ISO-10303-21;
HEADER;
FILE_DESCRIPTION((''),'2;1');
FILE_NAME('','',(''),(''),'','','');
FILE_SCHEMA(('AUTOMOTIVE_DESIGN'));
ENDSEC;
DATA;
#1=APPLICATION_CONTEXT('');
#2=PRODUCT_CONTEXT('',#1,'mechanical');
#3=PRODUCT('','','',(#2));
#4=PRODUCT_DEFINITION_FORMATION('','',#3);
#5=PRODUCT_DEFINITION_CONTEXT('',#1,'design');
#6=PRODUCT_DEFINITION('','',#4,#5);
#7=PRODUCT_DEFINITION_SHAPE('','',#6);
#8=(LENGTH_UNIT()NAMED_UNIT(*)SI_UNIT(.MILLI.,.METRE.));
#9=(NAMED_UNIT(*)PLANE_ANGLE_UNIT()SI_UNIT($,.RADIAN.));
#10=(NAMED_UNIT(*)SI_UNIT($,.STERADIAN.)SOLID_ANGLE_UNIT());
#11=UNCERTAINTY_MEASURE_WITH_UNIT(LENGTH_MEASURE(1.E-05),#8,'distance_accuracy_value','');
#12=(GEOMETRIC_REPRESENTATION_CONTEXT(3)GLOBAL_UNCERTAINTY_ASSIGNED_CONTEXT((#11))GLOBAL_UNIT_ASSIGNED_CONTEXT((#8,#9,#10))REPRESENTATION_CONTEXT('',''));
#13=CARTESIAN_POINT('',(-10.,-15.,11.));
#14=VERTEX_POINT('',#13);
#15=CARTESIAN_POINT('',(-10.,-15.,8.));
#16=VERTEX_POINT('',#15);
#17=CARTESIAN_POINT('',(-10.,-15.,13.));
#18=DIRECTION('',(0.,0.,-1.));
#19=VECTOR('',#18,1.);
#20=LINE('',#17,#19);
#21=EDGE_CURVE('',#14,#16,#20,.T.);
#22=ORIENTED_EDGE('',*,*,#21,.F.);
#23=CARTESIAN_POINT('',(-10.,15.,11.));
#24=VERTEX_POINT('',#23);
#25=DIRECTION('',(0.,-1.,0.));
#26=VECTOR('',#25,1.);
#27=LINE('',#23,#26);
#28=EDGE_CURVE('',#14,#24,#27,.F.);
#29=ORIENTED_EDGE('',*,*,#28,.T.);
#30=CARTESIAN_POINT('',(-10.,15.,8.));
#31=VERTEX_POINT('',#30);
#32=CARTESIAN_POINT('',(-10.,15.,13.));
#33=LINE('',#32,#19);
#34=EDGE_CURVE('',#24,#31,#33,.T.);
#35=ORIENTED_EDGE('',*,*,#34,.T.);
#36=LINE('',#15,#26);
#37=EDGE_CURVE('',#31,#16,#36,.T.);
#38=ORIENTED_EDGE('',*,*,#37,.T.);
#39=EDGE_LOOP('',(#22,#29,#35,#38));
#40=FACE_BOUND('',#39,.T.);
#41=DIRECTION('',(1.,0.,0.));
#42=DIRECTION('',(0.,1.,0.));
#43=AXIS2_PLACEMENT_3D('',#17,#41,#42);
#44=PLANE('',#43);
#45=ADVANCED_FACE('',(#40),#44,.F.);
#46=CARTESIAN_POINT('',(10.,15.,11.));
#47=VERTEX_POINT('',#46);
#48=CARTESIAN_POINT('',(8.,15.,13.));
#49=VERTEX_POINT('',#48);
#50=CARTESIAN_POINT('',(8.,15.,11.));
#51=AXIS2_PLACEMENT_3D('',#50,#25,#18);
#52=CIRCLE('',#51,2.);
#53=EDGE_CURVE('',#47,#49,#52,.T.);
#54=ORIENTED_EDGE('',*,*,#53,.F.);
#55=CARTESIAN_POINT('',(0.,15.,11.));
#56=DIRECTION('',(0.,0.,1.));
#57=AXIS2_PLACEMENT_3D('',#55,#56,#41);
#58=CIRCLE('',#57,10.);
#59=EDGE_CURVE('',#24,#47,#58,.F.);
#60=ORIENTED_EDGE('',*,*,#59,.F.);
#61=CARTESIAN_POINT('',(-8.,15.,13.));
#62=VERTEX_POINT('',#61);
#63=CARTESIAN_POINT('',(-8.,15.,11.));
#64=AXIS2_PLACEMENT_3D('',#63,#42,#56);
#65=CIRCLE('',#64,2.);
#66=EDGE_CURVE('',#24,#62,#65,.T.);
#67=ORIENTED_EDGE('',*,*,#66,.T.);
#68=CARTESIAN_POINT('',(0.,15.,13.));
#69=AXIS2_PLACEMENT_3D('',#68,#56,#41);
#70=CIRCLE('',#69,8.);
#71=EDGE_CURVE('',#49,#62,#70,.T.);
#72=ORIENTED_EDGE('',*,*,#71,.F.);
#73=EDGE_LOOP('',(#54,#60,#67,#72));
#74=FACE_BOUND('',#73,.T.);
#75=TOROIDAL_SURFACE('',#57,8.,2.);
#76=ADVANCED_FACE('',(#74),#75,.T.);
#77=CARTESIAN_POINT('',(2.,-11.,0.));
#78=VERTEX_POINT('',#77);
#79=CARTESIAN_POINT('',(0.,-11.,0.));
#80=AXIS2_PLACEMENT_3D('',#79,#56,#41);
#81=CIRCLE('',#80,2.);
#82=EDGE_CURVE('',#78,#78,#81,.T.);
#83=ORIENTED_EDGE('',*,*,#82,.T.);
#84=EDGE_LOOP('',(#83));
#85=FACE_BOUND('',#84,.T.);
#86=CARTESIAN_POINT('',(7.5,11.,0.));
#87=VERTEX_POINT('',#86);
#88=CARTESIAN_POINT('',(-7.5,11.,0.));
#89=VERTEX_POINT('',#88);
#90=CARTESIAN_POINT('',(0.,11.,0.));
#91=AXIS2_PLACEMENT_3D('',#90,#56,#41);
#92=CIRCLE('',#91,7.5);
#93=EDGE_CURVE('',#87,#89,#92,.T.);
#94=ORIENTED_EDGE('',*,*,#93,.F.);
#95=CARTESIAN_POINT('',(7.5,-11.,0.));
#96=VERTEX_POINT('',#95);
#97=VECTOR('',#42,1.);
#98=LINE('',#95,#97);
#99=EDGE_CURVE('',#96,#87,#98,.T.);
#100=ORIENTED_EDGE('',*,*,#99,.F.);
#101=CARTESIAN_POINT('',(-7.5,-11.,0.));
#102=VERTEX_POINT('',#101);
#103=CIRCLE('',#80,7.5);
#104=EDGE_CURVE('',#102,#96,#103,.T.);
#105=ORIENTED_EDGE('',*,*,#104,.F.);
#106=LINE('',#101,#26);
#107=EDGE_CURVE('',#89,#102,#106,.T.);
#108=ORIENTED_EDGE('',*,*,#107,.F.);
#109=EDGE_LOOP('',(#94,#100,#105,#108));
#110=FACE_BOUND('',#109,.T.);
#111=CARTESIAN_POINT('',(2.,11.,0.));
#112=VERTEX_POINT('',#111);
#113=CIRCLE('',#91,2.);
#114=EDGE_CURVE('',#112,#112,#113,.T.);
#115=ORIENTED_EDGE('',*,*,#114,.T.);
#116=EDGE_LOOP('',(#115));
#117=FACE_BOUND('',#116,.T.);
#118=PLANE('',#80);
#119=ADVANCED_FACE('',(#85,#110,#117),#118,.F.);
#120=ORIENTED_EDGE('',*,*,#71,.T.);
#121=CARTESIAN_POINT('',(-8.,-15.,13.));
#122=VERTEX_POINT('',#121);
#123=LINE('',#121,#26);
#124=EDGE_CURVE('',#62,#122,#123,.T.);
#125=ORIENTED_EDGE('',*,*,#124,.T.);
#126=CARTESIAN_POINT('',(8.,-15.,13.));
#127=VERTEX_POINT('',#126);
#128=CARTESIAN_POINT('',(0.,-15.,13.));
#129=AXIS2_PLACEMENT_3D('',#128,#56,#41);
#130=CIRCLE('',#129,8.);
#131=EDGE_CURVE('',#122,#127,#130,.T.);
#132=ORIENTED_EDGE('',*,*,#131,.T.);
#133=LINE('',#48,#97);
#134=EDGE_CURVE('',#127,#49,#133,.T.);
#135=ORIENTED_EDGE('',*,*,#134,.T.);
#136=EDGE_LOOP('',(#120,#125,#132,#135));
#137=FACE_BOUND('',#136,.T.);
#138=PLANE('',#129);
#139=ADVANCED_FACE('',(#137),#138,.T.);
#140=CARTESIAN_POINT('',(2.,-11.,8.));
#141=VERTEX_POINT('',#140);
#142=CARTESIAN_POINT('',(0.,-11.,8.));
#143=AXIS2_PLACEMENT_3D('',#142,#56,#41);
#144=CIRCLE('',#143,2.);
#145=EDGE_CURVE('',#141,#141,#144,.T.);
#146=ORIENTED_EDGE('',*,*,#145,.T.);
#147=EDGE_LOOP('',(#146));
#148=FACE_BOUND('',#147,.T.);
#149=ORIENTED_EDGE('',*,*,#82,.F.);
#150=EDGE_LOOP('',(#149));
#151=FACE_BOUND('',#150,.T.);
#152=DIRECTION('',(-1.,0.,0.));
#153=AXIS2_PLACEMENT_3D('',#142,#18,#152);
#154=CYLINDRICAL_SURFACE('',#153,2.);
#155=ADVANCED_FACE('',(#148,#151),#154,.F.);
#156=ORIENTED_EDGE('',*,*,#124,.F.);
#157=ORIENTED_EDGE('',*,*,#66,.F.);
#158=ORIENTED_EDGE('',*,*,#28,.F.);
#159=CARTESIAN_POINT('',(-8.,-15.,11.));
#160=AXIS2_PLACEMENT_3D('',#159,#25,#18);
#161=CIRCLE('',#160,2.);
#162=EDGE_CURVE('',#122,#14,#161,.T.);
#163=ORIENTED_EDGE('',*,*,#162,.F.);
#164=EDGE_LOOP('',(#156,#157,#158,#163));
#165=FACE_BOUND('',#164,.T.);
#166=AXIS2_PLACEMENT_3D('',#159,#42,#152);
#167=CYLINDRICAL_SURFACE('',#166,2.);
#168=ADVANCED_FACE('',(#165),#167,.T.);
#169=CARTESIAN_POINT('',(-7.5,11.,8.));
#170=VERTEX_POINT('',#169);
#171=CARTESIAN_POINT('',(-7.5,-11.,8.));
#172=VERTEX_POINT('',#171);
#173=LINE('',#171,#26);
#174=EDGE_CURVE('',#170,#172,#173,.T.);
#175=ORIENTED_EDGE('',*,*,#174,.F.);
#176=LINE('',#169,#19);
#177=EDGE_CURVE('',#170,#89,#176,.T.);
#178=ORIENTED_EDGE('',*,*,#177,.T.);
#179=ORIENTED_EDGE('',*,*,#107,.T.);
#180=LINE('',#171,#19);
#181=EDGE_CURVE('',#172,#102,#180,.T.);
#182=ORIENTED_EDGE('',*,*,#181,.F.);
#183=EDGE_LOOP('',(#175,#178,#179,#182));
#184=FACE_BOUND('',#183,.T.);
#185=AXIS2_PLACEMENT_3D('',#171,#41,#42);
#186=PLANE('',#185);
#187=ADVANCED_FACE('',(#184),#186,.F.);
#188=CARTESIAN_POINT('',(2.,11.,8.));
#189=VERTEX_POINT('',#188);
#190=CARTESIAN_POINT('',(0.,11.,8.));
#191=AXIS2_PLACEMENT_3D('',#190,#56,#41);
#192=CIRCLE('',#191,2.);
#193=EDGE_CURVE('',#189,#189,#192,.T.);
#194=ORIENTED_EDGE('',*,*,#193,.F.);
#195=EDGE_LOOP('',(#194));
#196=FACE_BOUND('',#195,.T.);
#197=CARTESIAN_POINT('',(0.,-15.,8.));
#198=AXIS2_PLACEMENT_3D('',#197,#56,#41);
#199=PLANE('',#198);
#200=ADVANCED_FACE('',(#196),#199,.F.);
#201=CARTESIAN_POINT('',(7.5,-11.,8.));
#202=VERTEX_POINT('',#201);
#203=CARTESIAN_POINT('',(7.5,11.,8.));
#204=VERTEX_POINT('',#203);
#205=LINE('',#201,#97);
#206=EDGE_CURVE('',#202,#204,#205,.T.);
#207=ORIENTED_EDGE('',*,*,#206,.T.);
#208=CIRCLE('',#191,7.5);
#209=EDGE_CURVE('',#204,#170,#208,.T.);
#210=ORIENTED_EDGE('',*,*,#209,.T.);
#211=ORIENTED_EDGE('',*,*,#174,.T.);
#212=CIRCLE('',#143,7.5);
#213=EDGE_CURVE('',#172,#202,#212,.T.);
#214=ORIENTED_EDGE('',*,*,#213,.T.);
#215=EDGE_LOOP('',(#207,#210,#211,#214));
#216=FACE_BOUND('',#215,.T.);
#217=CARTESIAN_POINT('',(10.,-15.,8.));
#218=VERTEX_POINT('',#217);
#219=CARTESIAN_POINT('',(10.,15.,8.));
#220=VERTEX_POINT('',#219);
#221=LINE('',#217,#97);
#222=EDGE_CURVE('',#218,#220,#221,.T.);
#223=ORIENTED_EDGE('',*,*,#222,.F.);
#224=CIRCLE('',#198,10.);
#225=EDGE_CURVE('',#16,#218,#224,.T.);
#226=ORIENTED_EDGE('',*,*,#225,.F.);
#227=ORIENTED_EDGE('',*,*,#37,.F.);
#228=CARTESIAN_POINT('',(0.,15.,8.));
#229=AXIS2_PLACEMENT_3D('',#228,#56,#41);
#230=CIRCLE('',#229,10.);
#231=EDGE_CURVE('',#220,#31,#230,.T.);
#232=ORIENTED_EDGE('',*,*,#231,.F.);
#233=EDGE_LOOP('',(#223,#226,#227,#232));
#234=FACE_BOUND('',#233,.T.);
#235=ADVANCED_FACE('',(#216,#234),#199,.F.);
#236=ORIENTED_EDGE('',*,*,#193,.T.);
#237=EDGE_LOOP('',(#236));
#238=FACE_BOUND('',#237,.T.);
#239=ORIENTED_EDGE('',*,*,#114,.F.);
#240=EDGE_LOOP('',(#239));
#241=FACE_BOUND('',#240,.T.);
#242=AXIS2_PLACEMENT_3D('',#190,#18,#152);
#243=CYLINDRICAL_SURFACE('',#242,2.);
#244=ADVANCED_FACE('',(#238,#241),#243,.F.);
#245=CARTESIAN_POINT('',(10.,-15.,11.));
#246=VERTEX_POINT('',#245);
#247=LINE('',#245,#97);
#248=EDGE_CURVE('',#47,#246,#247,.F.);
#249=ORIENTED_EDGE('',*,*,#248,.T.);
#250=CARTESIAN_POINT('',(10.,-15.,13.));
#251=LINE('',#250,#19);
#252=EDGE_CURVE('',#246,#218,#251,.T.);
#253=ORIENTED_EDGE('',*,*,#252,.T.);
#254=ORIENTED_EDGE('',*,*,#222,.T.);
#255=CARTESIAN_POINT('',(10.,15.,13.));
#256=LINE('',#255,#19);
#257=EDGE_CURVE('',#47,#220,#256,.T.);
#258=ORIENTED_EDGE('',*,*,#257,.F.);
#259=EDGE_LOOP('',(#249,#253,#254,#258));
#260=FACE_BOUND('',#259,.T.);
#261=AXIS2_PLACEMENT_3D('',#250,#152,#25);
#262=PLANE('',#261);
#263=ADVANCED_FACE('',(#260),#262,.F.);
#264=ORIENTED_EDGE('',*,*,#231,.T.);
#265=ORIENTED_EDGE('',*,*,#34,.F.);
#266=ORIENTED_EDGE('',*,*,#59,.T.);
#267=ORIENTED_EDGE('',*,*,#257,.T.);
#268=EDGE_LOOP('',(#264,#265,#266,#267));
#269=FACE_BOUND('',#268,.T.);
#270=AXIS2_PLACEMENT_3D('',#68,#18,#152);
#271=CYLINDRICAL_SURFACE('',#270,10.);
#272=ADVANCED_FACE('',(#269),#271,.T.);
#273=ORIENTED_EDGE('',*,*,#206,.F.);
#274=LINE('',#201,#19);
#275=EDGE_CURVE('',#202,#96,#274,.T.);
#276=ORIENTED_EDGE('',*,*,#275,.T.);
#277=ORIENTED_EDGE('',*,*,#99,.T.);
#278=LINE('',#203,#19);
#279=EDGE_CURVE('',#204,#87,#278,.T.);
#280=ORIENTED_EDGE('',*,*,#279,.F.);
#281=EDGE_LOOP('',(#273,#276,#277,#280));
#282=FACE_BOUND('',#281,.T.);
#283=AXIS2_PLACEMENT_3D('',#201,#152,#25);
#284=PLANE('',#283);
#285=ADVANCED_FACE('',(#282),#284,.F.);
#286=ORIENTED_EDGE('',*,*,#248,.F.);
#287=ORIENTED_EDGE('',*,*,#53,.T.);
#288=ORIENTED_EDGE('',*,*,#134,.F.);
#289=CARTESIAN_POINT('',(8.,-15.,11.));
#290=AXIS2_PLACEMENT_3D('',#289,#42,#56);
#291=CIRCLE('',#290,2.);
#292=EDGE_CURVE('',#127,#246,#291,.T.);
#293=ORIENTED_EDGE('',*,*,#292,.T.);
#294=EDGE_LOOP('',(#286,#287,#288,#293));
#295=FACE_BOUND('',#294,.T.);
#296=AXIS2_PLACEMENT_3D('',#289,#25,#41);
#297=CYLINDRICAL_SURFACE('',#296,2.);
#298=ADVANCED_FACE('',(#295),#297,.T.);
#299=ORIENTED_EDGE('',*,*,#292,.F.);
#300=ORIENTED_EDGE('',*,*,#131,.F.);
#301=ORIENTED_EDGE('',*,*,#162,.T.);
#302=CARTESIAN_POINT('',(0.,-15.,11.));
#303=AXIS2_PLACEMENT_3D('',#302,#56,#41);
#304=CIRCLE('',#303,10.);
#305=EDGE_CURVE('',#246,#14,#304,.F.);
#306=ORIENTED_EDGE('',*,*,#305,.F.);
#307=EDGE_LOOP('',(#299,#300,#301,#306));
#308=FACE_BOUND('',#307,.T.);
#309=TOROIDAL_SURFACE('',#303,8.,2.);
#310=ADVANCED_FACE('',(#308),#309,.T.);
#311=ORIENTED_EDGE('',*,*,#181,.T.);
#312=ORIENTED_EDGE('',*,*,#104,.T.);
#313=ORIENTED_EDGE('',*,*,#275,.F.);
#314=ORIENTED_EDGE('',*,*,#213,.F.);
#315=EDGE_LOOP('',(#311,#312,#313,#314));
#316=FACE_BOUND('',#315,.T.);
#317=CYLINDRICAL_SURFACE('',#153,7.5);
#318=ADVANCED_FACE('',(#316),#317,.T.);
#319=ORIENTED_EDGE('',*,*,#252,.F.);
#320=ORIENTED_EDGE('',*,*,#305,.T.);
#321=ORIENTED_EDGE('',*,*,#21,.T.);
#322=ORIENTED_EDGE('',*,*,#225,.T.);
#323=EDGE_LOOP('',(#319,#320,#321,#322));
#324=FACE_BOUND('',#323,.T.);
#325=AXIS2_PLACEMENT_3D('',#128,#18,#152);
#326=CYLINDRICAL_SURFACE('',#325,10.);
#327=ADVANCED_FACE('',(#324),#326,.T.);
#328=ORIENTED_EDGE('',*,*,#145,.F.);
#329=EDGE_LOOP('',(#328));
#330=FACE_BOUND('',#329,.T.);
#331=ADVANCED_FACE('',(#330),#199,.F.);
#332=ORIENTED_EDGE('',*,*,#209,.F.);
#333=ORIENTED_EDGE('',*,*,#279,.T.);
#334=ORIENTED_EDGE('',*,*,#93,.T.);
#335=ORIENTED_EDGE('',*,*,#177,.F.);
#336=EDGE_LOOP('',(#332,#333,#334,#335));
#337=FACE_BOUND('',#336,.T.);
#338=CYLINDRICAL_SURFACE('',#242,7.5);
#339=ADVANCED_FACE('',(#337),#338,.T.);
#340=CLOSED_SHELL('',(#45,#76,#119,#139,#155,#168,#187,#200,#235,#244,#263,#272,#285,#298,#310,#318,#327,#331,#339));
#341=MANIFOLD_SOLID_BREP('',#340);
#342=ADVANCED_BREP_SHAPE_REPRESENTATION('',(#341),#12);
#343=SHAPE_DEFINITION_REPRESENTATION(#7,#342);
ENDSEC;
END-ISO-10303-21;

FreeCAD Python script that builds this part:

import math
import FreeCAD as App
import Part
import Sketcher

V = App.Vector


def edges_at(feature, points):
    """Names of the edges that pass closest to the given points."""
    edges = feature.Shape.Edges
    near = lambda p: min(range(len(edges)), key=lambda i: edges[i].distToShape(Part.Vertex(*p))[0])
    return sorted({f"Edge{near(p) + 1}" for p in points})

doc = App.newDocument("Part")
body = doc.addObject("PartDesign::Body", "Body")

# Sketch on XY plane
sketch1 = body.newObject("Sketcher::SketchObject", "Sketch")
sketch1.AttachmentSupport = (doc.getObject("XY_Plane"), [""])
sketch1.MapMode = "FlatFace"
sketch1.addGeometry([
    Part.LineSegment(V(-7.5, 11, 0), V(-7.5, -11, 0)),  # 0
    Part.ArcOfCircle(Part.Circle(V(0, -11, 0), V(0, 0, 1), 7.5), math.radians(180), math.radians(360)),  # 1
    Part.LineSegment(V(7.5, -11, 0), V(7.5, 11, 0)),  # 2
    Part.ArcOfCircle(Part.Circle(V(0, 11, 0), V(0, 0, 1), 7.5), math.radians(0), math.radians(180)),  # 3
    Part.Circle(V(0, -11, 0), V(0, 0, 1), 2),  # 4
    Part.Circle(V(0, 11, 0), V(0, 0, 1), 2),  # 5
], False)
sketch1.addConstraint([
    Sketcher.Constraint("Tangent", 0, 2, 1, 1),
    Sketcher.Constraint("Tangent", 1, 2, 2, 1),
    Sketcher.Constraint("Tangent", 2, 2, 3, 1),
    Sketcher.Constraint("Tangent", 3, 2, 0, 1),
    Sketcher.Constraint("Vertical", 0),
    Sketcher.Constraint("Vertical", 2),
    Sketcher.Constraint("Coincident", 4, 3, 1, 3),
    Sketcher.Constraint("Coincident", 5, 3, 3, 3),
    Sketcher.Constraint("Equal", 4, 5),
    Sketcher.Constraint("Symmetric", 1, 3, 3, 3, -1, 1),
    Sketcher.Constraint("Diameter", 4, 4.0),
    Sketcher.Constraint("Radius", 1, 7.5),
    Sketcher.Constraint("DistanceY", 0, 2, 0, 1, 22.0),
])
pad1 = body.newObject("PartDesign::Pad", "Pad")
pad1.Profile = sketch1
pad1.Length = 8

# Sketch on XY plane
sketch2 = body.newObject("Sketcher::SketchObject", "Sketch001")
sketch2.AttachmentSupport = (doc.getObject("XY_Plane"), [""])
sketch2.MapMode = "FlatFace"
sketch2.AttachmentOffset = App.Placement(V(0, 0, 8), App.Rotation())
sketch2.addGeometry([
    Part.LineSegment(V(-10, 15, 0), V(-10, -15, 0)),
    Part.ArcOfCircle(Part.Circle(V(0, -15, 0), V(0, 0, 1), 10), math.radians(180), math.radians(360)),
    Part.LineSegment(V(10, -15, 0), V(10, 15, 0)),
    Part.ArcOfCircle(Part.Circle(V(0, 15, 0), V(0, 0, 1), 10), math.radians(0), math.radians(180)),
], False)
sketch2.addConstraint([
    Sketcher.Constraint("Tangent", 0, 2, 1, 1),
    Sketcher.Constraint("Tangent", 1, 2, 2, 1),
    Sketcher.Constraint("Tangent", 2, 2, 3, 1),
    Sketcher.Constraint("Tangent", 3, 2, 0, 1),
    Sketcher.Constraint("Vertical", 0),
    Sketcher.Constraint("Vertical", 2),
    Sketcher.Constraint("Symmetric", 1, 3, 3, 3, -1, 1),
    Sketcher.Constraint("Radius", 1, 10.0),
    Sketcher.Constraint("DistanceY", 0, 2, 0, 1, 30.0),
])
pad2 = body.newObject("PartDesign::Pad", "Pad001")
pad2.Profile = sketch2
pad2.Length = 5
doc.recompute()

fillet = body.newObject("PartDesign::Fillet", "Fillet")
fillet.Base = (pad2, edges_at(pad2, [
    (0, -25, 13),
    (10, 0, 13),
    (0, 25, 13),
    (-10, 0, 13),
]))
fillet.Radius = 2

doc.recompute()
